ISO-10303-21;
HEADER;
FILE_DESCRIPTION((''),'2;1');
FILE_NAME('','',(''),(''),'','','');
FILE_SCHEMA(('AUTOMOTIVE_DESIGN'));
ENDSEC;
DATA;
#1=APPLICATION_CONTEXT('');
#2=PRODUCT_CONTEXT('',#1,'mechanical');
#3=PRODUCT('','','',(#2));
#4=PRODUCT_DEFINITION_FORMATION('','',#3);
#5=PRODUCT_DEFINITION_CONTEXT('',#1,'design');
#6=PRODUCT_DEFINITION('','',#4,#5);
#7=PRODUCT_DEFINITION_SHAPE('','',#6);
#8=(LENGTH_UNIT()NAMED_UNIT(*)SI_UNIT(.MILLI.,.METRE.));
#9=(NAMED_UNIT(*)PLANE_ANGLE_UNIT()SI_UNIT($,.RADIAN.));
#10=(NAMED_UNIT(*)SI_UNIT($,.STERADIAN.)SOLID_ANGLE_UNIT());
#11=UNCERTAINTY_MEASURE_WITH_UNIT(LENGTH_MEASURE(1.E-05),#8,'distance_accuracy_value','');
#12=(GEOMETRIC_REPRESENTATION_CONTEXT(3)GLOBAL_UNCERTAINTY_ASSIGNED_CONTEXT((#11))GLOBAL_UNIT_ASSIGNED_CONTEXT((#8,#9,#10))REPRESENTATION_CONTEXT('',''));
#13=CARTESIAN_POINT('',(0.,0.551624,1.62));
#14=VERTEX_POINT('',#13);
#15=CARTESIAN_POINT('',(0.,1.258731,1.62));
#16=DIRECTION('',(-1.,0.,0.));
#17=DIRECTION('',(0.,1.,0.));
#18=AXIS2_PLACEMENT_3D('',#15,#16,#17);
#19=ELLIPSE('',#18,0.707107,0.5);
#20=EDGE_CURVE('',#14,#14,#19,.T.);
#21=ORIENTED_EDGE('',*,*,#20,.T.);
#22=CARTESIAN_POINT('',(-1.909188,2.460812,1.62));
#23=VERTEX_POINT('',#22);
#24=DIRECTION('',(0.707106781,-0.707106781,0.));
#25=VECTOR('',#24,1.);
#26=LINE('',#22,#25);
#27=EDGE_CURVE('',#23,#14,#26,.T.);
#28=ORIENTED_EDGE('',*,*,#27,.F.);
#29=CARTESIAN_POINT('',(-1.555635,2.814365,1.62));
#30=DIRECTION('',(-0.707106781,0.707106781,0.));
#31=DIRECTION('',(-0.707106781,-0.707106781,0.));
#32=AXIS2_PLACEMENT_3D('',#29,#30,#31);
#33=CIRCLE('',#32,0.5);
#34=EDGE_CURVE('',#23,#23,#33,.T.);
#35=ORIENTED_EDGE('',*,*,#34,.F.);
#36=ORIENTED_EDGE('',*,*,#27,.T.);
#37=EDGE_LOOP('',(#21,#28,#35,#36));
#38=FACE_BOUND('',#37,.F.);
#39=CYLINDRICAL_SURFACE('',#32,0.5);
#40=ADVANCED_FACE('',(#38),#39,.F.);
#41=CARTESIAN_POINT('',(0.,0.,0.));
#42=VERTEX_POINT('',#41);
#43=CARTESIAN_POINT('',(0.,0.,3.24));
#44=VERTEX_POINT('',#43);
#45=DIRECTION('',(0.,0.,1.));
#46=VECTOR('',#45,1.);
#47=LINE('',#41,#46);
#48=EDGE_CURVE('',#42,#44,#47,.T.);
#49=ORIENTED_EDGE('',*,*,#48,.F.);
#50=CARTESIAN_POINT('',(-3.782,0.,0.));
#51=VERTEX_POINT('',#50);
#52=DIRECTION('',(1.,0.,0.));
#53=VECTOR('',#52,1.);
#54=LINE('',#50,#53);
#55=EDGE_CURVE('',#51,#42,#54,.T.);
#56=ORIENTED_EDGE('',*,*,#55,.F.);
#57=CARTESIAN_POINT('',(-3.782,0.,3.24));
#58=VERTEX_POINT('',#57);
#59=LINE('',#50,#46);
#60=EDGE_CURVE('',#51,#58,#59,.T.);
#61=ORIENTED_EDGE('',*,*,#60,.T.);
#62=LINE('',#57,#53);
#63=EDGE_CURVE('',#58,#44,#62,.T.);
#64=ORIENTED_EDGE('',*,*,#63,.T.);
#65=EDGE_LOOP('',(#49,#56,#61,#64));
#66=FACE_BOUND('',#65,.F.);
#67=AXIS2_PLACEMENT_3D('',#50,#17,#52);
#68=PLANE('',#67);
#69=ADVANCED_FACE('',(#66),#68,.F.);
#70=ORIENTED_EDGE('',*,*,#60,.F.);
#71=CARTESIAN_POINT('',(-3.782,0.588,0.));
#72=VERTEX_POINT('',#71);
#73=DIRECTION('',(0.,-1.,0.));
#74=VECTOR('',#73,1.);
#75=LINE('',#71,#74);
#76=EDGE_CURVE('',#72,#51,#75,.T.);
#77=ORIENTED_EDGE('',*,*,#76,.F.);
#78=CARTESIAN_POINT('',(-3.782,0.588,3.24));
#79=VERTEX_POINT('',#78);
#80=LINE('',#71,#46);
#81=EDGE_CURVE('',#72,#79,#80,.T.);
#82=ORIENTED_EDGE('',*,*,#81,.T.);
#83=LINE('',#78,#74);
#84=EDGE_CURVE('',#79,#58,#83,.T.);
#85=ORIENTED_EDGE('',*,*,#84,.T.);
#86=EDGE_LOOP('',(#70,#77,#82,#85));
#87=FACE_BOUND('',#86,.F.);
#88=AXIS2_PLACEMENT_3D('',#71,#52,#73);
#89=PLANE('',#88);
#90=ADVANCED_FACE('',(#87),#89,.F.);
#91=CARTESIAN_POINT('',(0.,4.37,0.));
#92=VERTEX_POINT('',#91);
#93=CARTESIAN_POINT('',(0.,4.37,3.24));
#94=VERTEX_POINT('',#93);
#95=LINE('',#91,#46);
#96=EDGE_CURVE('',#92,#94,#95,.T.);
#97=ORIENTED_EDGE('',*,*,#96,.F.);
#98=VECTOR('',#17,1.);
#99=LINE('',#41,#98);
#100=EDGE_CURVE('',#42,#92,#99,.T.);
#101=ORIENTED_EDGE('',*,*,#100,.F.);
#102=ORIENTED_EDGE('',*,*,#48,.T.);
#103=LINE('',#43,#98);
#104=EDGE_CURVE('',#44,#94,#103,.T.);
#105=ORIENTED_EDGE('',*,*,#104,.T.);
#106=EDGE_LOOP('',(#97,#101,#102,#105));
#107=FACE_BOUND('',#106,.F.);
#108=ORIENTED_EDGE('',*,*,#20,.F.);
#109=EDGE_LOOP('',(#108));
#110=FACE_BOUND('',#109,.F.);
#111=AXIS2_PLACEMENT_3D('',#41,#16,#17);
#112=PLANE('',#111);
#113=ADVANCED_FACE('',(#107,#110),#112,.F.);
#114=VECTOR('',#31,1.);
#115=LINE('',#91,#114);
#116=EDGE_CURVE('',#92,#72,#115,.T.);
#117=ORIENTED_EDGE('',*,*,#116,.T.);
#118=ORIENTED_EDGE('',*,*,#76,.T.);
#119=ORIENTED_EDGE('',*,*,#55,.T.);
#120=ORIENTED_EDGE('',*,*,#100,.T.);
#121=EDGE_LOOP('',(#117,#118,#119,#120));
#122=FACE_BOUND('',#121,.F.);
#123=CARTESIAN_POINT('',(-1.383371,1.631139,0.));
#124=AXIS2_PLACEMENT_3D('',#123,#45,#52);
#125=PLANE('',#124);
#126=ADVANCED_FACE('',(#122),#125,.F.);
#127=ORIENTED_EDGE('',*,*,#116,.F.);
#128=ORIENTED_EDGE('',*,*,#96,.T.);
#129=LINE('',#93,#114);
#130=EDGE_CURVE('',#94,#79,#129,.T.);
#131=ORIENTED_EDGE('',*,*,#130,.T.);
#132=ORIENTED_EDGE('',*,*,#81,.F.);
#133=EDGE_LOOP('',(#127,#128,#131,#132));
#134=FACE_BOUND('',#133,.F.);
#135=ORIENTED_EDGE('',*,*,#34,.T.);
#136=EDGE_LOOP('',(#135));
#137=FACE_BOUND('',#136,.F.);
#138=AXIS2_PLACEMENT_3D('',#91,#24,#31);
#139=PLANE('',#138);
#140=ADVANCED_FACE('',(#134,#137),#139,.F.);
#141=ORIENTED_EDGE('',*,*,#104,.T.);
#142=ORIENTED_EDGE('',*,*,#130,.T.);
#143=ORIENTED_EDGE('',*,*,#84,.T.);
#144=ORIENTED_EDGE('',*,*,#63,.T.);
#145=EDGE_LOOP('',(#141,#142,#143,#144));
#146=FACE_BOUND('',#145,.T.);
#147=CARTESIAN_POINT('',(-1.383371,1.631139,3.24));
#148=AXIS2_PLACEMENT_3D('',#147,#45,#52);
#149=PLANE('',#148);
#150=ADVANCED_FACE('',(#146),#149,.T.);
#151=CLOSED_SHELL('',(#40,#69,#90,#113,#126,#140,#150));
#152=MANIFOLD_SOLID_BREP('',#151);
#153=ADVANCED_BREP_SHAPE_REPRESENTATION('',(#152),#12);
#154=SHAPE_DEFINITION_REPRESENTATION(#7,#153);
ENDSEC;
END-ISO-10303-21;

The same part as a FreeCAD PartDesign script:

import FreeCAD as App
import Part
import Sketcher
Q = App.Units.Quantity


def add_polygon(sketch, points):
    """Adds a closed chain of lines whose ends are joined by coincident constraints."""
    first, n = sketch.GeometryCount, len(points)
    for a, b in zip(points, points[1:] + points[:1]):
        sketch.addGeometry(Part.LineSegment(App.Vector(*a, 0), App.Vector(*b, 0)), False)
    for i in range(n):
        sketch.addConstraint(Sketcher.Constraint("Coincident", first + i, 2, first + (i + 1) % n, 1))

doc = App.newDocument("Part")
body = doc.addObject("PartDesign::Body", "Body")

sketch1 = body.newObject("Sketcher::SketchObject", "Sketch")
sketch1.AttachmentSupport = (doc.getObject("XY_Plane"), [""])
sketch1.MapMode = "FlatFace"
add_polygon(sketch1, [(-3.782, 0), (0, 0), (0, 4.37), (-3.782, 0.588)])
sketch1.addConstraint([
    Sketcher.Constraint("Horizontal", 0),
    Sketcher.Constraint("Vertical", 1),
    Sketcher.Constraint("Vertical", 3),
    Sketcher.Constraint("Coincident", 0, 2, -1, 1),
    Sketcher.Constraint("Angle", 2, Q("-135 deg")),
    Sketcher.Constraint("DistanceY", 1, 1, 1, 2, Q("4.37 mm")),
    Sketcher.Constraint("DistanceX", 0, 1, 0, 2, Q("3.782 mm")),
])
pad1 = body.newObject("PartDesign::Pad", "Pad")
pad1.Profile = sketch1
pad1.Length = 3.24

sketch2 = body.newObject("Sketcher::SketchObject", "Sketch001")
sketch2.Placement = App.Placement(App.Vector(-2.185, 2.185, 0), App.Rotation(App.Vector(-0.707106781, -0.707106781, 0), App.Vector(0, 0, 0.999999999), App.Vector(-0.707106781, 0.707106781, 0), "ZXY"))
sketch2.addGeometry(Part.Circle(App.Vector(-0.890057, 1.62, 0), App.Vector(0, 0, 1), 0.5), False)
sketch2.addConstraint([
    Sketcher.Constraint("Diameter", 0, Q("1 mm")),
    Sketcher.Constraint("DistanceY", -1, 1, 0, 3, Q("1.62 mm")),
    Sketcher.Constraint("DistanceX", 0, 3, -1, 1, Q("0.890057 mm")),
])
pocket1 = body.newObject("PartDesign::Pocket", "Pocket")
pocket1.Profile = sketch2
pocket1.Length = 5
pocket2 = body.newObject("PartDesign::Pocket", "Pocket001")
pocket2.Profile = sketch2
pocket2.Length = 25

doc.recompute()
